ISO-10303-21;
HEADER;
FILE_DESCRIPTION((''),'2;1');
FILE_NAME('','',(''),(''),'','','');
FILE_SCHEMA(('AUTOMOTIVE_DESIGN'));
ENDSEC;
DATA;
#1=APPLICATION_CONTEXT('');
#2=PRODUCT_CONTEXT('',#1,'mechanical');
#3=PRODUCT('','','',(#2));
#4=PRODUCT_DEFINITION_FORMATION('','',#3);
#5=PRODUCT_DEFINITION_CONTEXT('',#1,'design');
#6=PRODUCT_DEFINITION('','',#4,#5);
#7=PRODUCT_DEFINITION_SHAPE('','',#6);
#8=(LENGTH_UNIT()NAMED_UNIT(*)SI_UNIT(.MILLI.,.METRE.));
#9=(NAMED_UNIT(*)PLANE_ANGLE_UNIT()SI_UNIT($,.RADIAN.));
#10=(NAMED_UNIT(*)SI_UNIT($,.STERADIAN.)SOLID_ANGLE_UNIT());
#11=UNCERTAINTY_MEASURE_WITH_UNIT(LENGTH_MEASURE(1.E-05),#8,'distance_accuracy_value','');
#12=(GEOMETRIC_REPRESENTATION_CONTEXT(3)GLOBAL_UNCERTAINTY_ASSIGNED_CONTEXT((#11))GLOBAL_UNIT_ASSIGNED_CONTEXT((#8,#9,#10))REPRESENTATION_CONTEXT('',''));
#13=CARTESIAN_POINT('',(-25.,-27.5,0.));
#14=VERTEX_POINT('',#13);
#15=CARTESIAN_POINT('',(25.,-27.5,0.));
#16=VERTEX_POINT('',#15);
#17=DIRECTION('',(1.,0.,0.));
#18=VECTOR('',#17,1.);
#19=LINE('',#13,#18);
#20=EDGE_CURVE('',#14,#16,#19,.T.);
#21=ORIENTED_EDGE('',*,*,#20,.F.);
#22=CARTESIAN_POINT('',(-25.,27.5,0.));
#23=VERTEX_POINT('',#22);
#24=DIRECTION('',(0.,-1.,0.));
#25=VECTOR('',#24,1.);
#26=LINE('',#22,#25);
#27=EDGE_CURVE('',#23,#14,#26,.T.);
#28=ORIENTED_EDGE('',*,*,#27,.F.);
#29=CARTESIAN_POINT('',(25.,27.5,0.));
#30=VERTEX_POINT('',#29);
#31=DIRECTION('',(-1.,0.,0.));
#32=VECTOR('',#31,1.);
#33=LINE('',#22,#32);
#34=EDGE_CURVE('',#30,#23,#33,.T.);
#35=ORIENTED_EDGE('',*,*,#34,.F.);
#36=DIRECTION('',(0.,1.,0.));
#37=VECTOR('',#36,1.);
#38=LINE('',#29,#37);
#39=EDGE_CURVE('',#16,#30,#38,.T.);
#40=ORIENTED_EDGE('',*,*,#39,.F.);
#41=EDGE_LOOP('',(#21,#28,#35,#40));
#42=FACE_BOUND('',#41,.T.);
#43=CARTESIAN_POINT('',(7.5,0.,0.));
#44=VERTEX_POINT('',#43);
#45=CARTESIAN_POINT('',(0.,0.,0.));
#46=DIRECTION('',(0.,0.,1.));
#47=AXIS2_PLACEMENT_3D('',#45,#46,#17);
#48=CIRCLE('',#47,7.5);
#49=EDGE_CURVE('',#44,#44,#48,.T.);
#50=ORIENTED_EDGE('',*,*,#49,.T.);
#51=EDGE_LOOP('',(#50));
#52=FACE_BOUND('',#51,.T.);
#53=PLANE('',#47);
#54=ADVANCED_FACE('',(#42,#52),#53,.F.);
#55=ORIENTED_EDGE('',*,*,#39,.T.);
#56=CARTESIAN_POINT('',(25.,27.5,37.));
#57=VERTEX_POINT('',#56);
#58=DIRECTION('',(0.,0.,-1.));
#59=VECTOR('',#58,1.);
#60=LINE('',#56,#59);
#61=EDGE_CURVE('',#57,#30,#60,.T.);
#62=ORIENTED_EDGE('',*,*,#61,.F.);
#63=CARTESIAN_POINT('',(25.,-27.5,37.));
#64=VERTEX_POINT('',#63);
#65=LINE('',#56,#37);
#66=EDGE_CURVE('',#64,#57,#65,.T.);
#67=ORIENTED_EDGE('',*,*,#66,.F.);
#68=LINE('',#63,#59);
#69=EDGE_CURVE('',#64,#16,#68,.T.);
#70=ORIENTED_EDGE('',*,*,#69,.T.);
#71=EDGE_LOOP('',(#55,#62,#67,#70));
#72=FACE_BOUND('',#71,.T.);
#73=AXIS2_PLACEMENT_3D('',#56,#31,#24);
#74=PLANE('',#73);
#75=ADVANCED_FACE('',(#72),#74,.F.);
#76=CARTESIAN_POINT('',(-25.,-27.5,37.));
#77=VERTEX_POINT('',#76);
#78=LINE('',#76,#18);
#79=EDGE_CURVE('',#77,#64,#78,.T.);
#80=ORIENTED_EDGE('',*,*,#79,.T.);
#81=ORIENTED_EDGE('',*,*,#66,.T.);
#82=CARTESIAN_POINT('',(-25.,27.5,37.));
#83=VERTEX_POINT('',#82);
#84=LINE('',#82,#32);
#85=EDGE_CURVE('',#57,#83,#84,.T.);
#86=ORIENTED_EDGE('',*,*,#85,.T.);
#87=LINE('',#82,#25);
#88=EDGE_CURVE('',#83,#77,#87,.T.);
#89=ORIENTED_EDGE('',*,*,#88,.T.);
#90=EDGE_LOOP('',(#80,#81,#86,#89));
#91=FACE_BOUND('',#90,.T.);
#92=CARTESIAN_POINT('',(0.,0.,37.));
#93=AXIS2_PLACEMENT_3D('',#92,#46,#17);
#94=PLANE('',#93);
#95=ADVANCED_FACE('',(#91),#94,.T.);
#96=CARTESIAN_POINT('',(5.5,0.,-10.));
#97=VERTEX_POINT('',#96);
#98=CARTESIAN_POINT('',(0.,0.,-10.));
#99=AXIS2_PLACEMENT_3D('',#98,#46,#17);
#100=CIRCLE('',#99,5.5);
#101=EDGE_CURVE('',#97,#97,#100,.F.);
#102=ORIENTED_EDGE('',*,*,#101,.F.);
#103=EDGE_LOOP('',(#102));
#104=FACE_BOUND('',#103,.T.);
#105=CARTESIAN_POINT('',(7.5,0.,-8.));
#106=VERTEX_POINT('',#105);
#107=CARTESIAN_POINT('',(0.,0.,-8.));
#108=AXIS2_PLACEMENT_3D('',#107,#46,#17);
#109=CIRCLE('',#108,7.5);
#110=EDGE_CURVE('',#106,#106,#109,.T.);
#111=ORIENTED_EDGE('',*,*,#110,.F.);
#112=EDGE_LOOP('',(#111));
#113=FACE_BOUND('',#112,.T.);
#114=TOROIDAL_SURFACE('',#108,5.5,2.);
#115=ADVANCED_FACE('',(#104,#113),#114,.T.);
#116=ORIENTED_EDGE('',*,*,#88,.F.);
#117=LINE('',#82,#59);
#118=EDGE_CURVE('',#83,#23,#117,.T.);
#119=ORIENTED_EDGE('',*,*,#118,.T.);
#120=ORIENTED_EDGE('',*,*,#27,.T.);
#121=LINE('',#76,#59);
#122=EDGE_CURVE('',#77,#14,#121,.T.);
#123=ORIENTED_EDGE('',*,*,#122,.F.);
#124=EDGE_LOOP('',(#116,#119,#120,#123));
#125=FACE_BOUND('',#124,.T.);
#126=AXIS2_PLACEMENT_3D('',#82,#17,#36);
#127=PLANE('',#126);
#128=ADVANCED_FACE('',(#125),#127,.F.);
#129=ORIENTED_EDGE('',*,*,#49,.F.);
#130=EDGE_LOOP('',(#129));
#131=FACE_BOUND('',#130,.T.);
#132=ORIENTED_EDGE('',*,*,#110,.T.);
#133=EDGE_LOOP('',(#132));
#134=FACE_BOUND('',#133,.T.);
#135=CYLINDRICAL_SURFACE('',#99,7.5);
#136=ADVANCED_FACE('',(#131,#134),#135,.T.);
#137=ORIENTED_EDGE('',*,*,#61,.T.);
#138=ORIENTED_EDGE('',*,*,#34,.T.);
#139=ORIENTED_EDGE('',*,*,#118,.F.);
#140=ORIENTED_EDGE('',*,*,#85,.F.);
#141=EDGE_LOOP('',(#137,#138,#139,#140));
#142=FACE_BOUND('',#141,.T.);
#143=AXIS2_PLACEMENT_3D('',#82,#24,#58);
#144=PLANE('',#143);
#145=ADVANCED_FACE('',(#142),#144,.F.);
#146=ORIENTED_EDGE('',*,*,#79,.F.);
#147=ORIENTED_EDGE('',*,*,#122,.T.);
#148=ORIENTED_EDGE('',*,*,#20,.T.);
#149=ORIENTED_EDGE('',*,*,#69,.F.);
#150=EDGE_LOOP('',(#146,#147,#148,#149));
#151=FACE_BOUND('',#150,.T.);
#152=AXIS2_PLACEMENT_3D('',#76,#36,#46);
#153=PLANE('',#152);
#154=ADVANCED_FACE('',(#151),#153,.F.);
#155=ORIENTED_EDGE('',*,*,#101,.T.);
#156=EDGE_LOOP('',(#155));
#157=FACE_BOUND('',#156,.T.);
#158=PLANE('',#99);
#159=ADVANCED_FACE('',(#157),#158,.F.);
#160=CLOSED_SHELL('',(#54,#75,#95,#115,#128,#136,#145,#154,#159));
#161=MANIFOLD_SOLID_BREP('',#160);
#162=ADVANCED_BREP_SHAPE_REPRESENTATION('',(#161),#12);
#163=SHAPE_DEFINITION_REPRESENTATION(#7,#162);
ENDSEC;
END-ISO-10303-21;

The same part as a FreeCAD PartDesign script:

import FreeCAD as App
import Part
import Sketcher
from FreeCAD import Vector
Q = App.Units.Quantity


def edges_at(feature, points):
    """Names of the edges that pass closest to the given points."""
    edges = feature.Shape.Edges
    near = lambda p: min(range(len(edges)), key=lambda i: edges[i].distToShape(Part.Vertex(*p))[0])
    return sorted({f"Edge{near(p) + 1}" for p in points})

doc = App.newDocument("Part")
body = doc.addObject("PartDesign::Body", "Body")

# Sketch on XY plane
sketch1 = body.newObject("Sketcher::SketchObject", "Sketch")
sketch1.AttachmentSupport = (doc.getObject("XY_Plane"), [""])
sketch1.MapMode = "FlatFace"
sketch1.addGeometry([
    Part.LineSegment(Vector(-25, 28, 0), Vector(-25, -28, 0)),
    Part.LineSegment(Vector(-25, -28, 0), Vector(25, -28, 0)),
    Part.LineSegment(Vector(25, -28, 0), Vector(25, 28, 0)),
    Part.LineSegment(Vector(25, 28, 0), Vector(-25, 28, 0)),
], False)
sketch1.addConstraint([
    Sketcher.Constraint("Coincident", 0, 2, 1, 1),
    Sketcher.Constraint("Coincident", 1, 2, 2, 1),
    Sketcher.Constraint("Coincident", 2, 2, 3, 1),
    Sketcher.Constraint("Coincident", 3, 2, 0, 1),
    Sketcher.Constraint("Vertical", 0),
    Sketcher.Constraint("Horizontal", 1),
    Sketcher.Constraint("Vertical", 2),
    Sketcher.Constraint("Horizontal", 3),
    Sketcher.Constraint("Symmetric", 0, 2, 2, 2, -1, 1),
    Sketcher.Constraint("DistanceX", 1, 1, 1, 2, Q("50 mm")),
    Sketcher.Constraint("DistanceY", 0, 2, 0, 1, Q("55 mm")),
])
pad1 = body.newObject("PartDesign::Pad", "Pad")
pad1.Profile = sketch1
pad1.Length = 37

# Sketch on XY plane
sketch2 = body.newObject("Sketcher::SketchObject", "Sketch001")
sketch2.AttachmentSupport = (doc.getObject("XY_Plane"), [""])
sketch2.MapMode = "FlatFace"
sketch2.addGeometry(Part.Circle(Vector(0, 0, 0), Vector(0, 0, 1), 8), False)
sketch2.addConstraint([
    Sketcher.Constraint("Coincident", 0, 3, -1, 1),
    Sketcher.Constraint("Diameter", 0, Q("15 mm")),
])
pad2 = body.newObject("PartDesign::Pad", "Pad001")
pad2.Profile = sketch2
pad2.Length = 10
pad2.Reversed = True
doc.recompute()

fillet = body.newObject("PartDesign::Fillet", "Fillet")
fillet.Base = (pad2, edges_at(pad2, [(-7.5, 0, -10)]))
fillet.Radius = 2

doc.recompute()
